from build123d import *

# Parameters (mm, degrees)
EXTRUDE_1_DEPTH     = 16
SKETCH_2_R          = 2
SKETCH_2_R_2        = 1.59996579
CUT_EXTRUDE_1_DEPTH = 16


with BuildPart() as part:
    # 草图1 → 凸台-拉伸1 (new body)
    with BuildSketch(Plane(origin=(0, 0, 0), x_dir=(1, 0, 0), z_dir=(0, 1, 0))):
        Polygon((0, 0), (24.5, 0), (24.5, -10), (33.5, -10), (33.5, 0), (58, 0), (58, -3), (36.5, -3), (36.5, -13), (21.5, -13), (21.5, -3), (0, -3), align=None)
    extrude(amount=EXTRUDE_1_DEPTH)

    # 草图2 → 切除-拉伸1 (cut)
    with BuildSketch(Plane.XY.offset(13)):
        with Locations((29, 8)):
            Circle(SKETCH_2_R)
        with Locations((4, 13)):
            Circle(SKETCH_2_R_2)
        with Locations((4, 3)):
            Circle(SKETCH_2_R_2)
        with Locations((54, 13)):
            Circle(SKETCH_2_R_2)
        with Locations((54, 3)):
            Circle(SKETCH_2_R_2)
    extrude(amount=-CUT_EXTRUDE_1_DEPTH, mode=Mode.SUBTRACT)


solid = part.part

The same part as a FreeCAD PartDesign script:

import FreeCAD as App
import Part
import Sketcher

V = App.Vector
Q = App.Units.Quantity


def add_polygon(sketch, points):
    """Adds a closed chain of lines whose ends are joined by coincident constraints."""
    first, n = sketch.GeometryCount, len(points)
    for a, b in zip(points, points[1:] + points[:1]):
        sketch.addGeometry(Part.LineSegment(App.Vector(*a, 0), App.Vector(*b, 0)), False)
    for i in range(n):
        sketch.addConstraint(Sketcher.Constraint("Coincident", first + i, 2, first + (i + 1) % n, 1))

doc = App.newDocument("Part")
params = doc.addObject("Spreadsheet::Sheet", "Params")
for row, (alias, value) in enumerate([
    ("sketch1_width", "15 mm"),
    ("sketch1_width2", "9 mm"),
    ("sketch1_height", "3 mm"),
    ("sketch1_height2", "10 mm"),
    ("sketch1_width3", "24.5 mm"),
    ("pad1_length", "16 mm"),
    ("sketch2_diameter", "4 mm"),
    ("pocket1_length", "16 mm"),
], start=1):
    params.set(f"A{row}", alias)
    params.set(f"B{row}", "=" + value)
    params.setAlias(f"B{row}", alias)

body = doc.addObject("PartDesign::Body", "Body")

# Sketch on XZ plane
sketch1 = body.newObject("Sketcher::SketchObject", "Sketch")
sketch1.AttachmentSupport = (doc.getObject("XZ_Plane"), [""])
sketch1.MapMode = "FlatFace"
add_polygon(sketch1, [(24.5, 0), (0, 0), (0, 3), (21.5, 3), (21.5, 13), (36.5, 13), (36.5, 3), (58, 3), (58, 0), (33.5, 0), (33.5, 10), (24.5, 10)])  # lines 0-11
sketch1.addConstraint([
    Sketcher.Constraint("Horizontal", 0),
    Sketcher.Constraint("Vertical", 1),
    Sketcher.Constraint("Horizontal", 2),
    Sketcher.Constraint("Vertical", 3),
    Sketcher.Constraint("Horizontal", 4),
    Sketcher.Constraint("Vertical", 5),
    Sketcher.Constraint("Horizontal", 6),
    Sketcher.Constraint("Vertical", 7),
    Sketcher.Constraint("Horizontal", 8),
    Sketcher.Constraint("Vertical", 9),
    Sketcher.Constraint("Horizontal", 10),
    Sketcher.Constraint("Vertical", 11),
    Sketcher.Constraint("Coincident", 0, 2, -1, 1),
    Sketcher.Constraint("PointOnObject", 7, 2, -1),
    Sketcher.Constraint("Horizontal", 2, 2, 5, 2),
    Sketcher.Constraint("Equal", 2, 6),
    Sketcher.Constraint("Equal", 0, 8),
    Sketcher.Constraint("Equal", 5, 9),
    Sketcher.Constraint("DistanceX", 4, 1, 4, 2, Q("15 mm")),
    Sketcher.Constraint("DistanceX", 10, 2, 10, 1, Q("9 mm")),
    Sketcher.Constraint("DistanceY", 1, 1, 1, 2, Q("3 mm")),
    Sketcher.Constraint("DistanceY", 3, 1, 3, 2, Q("10 mm")),
    Sketcher.Constraint("DistanceX", 0, 2, 0, 1, Q("24.5 mm")),
])
sketch1.setExpression("Constraints[30]", "Params.sketch1_width")
sketch1.setExpression("Constraints[31]", "Params.sketch1_width2")
sketch1.setExpression("Constraints[32]", "Params.sketch1_height")
sketch1.setExpression("Constraints[33]", "Params.sketch1_height2")
sketch1.setExpression("Constraints[34]", "Params.sketch1_width3")
pad1 = body.newObject("PartDesign::Pad", "Pad")
pad1.Profile = sketch1
pad1.setExpression("Length", "Params.pad1_length")
pad1.Reversed = True

# Sketch on XY plane
sketch2 = body.newObject("Sketcher::SketchObject", "Sketch001")
sketch2.AttachmentSupport = (doc.getObject("XY_Plane"), [""])
sketch2.MapMode = "FlatFace"
sketch2.AttachmentOffset = App.Placement(V(0, 0, 13), App.Rotation())
sketch2.addGeometry([
    Part.Circle(V(29, 8, 0), V(0, 0, 1), 2),  # 0
    Part.Circle(V(4, 13, 0), V(0, 0, 1), 1.599966),  # 1
    Part.Circle(V(4, 3, 0), V(0, 0, 1), 1.599966),  # 2
    Part.Circle(V(54, 13, 0), V(0, 0, 1), 1.599966),  # 3
    Part.Circle(V(54, 3, 0), V(0, 0, 1), 1.599966),  # 4
], False)
sketch2.addConstraint([
    Sketcher.Constraint("Equal", 1, 2),
    Sketcher.Constraint("Equal", 2, 3),
    Sketcher.Constraint("Equal", 3, 4),
    Sketcher.Constraint("Horizontal", 1, 3, 3, 3),
    Sketcher.Constraint("Horizontal", 2, 3, 4, 3),
    Sketcher.Constraint("Vertical", 1, 3, 2, 3),
    Sketcher.Constraint("Vertical", 3, 3, 4, 3),
    Sketcher.Constraint("Diameter", 0, Q("4 mm")),
    Sketcher.Constraint("DistanceX", -1, 1, 0, 3, Q("29 mm")),
    Sketcher.Constraint("DistanceY", -1, 1, 0, 3, Q("8 mm")),
    Sketcher.Constraint("DistanceX", -1, 1, 1, 3, Q("4 mm")),
    Sketcher.Constraint("DistanceY", -1, 1, 1, 3, Q("13 mm")),
    Sketcher.Constraint("DistanceY", -1, 1, 2, 3, Q("3 mm")),
    Sketcher.Constraint("DistanceX", -1, 1, 3, 3, Q("54 mm")),
    Sketcher.Constraint("Diameter", 1, Q("3.199932 mm")),
])
sketch2.setExpression("Constraints[7]", "Params.sketch2_diameter")
pocket1 = body.newObject("PartDesign::Pocket", "Pocket")
pocket1.Profile = sketch2
pocket1.setExpression("Length", "Params.pocket1_length")

doc.recompute()
